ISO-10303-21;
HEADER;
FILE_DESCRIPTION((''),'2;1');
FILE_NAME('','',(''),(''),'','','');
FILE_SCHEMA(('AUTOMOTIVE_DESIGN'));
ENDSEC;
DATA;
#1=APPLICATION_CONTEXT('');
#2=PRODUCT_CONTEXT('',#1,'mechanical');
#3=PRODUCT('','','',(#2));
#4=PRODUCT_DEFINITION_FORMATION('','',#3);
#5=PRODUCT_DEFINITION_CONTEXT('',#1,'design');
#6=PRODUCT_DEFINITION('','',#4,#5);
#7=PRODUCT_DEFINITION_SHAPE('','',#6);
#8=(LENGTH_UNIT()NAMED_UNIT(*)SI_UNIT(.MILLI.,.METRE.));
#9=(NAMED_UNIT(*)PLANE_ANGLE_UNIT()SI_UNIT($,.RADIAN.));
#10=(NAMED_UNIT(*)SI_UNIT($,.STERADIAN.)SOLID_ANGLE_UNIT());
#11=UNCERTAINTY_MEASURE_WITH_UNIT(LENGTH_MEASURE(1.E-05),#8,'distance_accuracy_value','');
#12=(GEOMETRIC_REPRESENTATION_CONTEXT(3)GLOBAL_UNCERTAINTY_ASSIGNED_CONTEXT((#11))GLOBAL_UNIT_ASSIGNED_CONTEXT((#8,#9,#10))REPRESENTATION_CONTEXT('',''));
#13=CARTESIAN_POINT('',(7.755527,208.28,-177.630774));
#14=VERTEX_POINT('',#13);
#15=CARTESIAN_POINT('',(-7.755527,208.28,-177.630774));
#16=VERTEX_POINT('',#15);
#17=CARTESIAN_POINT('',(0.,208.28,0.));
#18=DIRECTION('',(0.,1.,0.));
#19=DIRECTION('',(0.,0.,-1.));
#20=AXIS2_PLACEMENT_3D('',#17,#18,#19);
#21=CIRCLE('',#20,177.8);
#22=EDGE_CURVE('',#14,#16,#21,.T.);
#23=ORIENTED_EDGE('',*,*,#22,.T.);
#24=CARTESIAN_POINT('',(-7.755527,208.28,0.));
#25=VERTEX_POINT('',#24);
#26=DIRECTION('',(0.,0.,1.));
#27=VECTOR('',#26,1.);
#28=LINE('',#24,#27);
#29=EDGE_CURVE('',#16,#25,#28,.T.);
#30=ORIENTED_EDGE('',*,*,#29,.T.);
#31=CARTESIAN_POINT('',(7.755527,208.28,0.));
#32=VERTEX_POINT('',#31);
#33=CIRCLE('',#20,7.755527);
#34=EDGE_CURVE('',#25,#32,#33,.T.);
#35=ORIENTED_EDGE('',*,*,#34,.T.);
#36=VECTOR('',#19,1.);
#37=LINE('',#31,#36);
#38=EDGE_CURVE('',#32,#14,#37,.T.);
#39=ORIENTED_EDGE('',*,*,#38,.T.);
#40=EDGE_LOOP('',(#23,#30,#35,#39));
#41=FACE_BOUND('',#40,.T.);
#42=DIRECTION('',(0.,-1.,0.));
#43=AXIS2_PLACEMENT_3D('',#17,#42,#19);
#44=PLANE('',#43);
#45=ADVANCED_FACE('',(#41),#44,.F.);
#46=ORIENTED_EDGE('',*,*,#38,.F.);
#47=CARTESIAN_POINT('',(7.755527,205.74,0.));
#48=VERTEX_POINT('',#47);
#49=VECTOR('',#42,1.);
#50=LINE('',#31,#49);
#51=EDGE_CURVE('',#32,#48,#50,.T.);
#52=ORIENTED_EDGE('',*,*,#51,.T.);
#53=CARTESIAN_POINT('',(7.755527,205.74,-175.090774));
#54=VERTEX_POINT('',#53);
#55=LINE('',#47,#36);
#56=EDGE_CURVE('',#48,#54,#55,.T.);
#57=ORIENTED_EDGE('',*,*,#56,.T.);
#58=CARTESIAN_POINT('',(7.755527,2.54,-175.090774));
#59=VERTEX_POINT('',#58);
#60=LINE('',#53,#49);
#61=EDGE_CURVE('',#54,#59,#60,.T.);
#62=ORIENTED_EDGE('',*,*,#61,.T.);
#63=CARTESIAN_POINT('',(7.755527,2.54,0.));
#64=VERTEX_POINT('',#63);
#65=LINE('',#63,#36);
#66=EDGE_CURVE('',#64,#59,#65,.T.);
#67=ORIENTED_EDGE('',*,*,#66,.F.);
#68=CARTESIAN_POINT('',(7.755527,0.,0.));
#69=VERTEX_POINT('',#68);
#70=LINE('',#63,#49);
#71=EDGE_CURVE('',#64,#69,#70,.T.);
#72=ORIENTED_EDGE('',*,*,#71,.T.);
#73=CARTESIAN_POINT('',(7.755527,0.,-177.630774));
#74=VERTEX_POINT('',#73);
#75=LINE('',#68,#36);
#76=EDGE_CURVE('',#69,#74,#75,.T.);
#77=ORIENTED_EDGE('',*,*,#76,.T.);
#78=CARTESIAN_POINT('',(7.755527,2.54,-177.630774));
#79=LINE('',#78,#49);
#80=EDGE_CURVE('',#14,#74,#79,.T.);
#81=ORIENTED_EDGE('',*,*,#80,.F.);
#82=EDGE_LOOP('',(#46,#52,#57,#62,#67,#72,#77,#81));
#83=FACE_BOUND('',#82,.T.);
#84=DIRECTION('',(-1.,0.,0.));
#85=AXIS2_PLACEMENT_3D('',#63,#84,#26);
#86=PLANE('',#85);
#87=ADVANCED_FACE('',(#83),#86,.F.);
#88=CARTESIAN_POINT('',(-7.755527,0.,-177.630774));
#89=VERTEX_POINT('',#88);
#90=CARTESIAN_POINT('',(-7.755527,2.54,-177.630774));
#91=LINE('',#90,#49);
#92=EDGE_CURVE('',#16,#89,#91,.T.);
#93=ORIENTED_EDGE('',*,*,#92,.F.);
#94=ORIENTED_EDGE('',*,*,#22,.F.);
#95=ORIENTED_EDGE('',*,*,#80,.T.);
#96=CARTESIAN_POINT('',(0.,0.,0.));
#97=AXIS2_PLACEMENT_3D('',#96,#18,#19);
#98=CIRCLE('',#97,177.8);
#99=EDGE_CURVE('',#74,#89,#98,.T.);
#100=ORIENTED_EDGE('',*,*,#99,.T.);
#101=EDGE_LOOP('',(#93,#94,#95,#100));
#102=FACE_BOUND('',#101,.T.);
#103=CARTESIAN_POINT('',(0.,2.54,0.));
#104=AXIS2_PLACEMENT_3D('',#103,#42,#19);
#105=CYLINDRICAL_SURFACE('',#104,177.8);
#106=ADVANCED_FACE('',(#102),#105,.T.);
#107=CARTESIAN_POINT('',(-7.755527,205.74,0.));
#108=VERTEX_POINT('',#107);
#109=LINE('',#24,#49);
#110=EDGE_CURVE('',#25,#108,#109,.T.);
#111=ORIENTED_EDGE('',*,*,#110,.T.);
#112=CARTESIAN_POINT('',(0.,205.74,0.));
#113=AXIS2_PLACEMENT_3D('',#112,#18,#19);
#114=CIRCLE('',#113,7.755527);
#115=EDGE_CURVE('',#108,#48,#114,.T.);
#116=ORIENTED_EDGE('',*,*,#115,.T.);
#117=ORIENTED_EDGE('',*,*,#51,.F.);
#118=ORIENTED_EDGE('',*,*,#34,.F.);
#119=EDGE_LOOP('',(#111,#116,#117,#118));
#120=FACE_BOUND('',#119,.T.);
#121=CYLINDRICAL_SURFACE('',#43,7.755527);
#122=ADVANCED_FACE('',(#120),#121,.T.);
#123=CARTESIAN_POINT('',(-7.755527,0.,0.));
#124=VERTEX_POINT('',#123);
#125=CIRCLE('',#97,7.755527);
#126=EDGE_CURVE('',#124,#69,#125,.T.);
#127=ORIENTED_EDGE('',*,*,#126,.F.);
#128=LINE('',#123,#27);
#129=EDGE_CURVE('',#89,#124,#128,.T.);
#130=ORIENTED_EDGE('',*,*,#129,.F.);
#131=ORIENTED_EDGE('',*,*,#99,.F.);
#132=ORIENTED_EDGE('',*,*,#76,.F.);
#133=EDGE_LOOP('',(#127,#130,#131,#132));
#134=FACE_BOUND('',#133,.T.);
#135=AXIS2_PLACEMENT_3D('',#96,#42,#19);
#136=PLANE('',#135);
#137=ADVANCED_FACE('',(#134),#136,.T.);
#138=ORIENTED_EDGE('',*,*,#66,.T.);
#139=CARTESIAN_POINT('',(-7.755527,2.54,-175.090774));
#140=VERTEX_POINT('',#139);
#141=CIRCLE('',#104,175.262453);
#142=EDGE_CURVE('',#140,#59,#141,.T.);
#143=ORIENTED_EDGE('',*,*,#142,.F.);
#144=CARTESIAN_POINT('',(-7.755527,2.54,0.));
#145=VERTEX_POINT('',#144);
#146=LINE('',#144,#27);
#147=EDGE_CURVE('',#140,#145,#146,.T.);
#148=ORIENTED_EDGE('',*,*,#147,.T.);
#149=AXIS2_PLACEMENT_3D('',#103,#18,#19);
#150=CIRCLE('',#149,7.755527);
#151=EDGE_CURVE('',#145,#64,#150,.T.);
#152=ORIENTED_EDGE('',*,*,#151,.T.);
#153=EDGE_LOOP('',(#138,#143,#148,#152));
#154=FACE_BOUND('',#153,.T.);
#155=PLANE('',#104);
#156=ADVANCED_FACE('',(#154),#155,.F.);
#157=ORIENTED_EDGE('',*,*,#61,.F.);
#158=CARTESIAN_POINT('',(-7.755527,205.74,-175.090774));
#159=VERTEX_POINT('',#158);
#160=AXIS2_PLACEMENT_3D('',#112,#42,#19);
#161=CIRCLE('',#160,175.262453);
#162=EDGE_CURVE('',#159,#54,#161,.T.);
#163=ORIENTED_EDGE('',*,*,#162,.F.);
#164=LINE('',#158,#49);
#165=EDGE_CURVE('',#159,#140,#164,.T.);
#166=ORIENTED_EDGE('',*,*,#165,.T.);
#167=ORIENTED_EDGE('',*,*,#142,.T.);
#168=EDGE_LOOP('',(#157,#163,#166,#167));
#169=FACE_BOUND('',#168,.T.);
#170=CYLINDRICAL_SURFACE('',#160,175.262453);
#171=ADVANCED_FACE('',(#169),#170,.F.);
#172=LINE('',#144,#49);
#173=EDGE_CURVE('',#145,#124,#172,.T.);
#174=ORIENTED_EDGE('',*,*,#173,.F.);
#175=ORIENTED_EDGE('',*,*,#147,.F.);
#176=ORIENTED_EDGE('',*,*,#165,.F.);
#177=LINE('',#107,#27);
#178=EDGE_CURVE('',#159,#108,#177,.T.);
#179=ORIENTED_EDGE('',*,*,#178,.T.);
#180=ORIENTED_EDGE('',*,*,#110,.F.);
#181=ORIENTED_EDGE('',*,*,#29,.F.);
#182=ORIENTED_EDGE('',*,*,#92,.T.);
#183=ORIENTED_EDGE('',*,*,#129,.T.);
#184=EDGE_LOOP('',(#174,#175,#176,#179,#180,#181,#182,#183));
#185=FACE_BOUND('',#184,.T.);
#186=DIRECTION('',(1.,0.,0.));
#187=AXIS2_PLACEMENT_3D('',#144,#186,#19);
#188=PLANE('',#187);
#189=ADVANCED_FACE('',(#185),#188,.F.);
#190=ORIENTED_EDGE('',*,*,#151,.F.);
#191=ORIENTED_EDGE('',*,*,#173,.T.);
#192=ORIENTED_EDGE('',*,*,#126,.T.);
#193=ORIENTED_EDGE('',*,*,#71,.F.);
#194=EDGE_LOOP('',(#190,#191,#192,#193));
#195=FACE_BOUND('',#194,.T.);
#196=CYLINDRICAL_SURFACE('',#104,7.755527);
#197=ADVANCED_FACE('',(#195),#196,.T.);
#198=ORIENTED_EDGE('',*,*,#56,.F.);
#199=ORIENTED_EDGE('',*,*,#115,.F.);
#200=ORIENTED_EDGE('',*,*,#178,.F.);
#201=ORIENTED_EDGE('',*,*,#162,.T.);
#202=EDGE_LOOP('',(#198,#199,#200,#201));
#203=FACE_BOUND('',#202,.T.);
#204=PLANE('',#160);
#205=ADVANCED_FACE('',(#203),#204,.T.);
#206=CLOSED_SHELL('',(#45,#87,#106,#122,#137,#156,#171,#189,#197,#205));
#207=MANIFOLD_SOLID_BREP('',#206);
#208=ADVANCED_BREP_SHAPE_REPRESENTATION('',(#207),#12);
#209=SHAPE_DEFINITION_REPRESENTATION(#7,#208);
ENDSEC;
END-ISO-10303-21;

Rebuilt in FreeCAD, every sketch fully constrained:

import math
import FreeCAD as App
import Part
import Sketcher
Q = App.Units.Quantity

doc = App.newDocument("Part")
body = doc.addObject("PartDesign::Body", "Body")

# Sketch on XZ plane
sketch1 = body.newObject("Sketcher::SketchObject", "Sketch")
sketch1.AttachmentSupport = (doc.getObject("XZ_Plane"), [""])
sketch1.MapMode = "FlatFace"
sketch1.addGeometry([
    Part.LineSegment(App.Vector(-8, -178, 0), App.Vector(-8, 0, 0)),
    Part.ArcOfCircle(Part.Circle(App.Vector(0, 0, 0), App.Vector(0, 0, 1), 8), math.radians(0), math.radians(180)),
    Part.LineSegment(App.Vector(8, 0, 0), App.Vector(8, -178, 0)),
    Part.ArcOfCircle(Part.Circle(App.Vector(0, 0, 0), App.Vector(0, 0, 1), 178), math.radians(-92.5), math.radians(-87.5)),
], False)
sketch1.addConstraint([
    Sketcher.Constraint("Tangent", 0, 2, 1, 2),
    Sketcher.Constraint("Tangent", 1, 1, 2, 1),
    Sketcher.Constraint("Coincident", 2, 2, 3, 2),
    Sketcher.Constraint("Coincident", 3, 1, 0, 1),
    Sketcher.Constraint("Vertical", 0),
    Sketcher.Constraint("Vertical", 2),
    Sketcher.Constraint("Coincident", 1, 3, -1, 1),
    Sketcher.Constraint("Coincident", 3, 3, -1, 1),
    Sketcher.Constraint("Radius", 3, Q("7 in")),
    Sketcher.Constraint("Radius", 1, Q("7.755527 mm")),
])
pad1 = body.newObject("PartDesign::Pad", "Pad")
pad1.Profile = sketch1
pad1.Length = Q("0.1 in")
pad1.Reversed = True

# Sketch on XZ plane
sketch2 = body.newObject("Sketcher::SketchObject", "Sketch001")
sketch2.AttachmentSupport = (doc.getObject("XZ_Plane"), [""])
sketch2.MapMode = "FlatFace"
sketch2.AttachmentOffset = App.Placement(App.Vector(0, 0, -0.1 * 25.4), App.Rotation())
sketch2.addGeometry([
    Part.LineSegment(App.Vector(-7.8, -177.6, 0), App.Vector(-7.8, -175.1, 0)),
    Part.ArcOfCircle(Part.Circle(App.Vector(0, 0, 0), App.Vector(0, 0, 1), 175.3), math.radians(-92.54), math.radians(-87.46)),
    Part.LineSegment(App.Vector(7.8, -175.1, 0), App.Vector(7.8, -177.6, 0)),
    Part.ArcOfCircle(Part.Circle(App.Vector(0, 0, 0), App.Vector(0, 0, 1), 177.8), math.radians(-92.5), math.radians(-87.5)),
], False)
sketch2.addConstraint([
    Sketcher.Constraint("Coincident", 0, 2, 1, 1),
    Sketcher.Constraint("Coincident", 1, 2, 2, 1),
    Sketcher.Constraint("Coincident", 2, 2, 3, 2),
    Sketcher.Constraint("Coincident", 3, 1, 0, 1),
    Sketcher.Constraint("Vertical", 0),
    Sketcher.Constraint("Vertical", 2),
    Sketcher.Constraint("Coincident", 1, 3, -1, 1),
    Sketcher.Constraint("Coincident", 3, 3, -1, 1),
    Sketcher.Constraint("Horizontal", 0, 2, 1, 2),
    Sketcher.Constraint("Radius", 3, Q("7 in")),
    Sketcher.Constraint("DistanceY", 0, 1, 0, 2, Q("0.1 in")),
    Sketcher.Constraint("DistanceX", 0, 2, -1, 1, Q("7.755527 mm")),
])
pad2 = body.newObject("PartDesign::Pad", "Pad001")
pad2.Profile = sketch2
pad2.Length = Q("8 in")
pad2.Reversed = True

# Sketch on XZ plane
sketch3 = body.newObject("Sketcher::SketchObject", "Sketch002")
sketch3.AttachmentSupport = (doc.getObject("XZ_Plane"), [""])
sketch3.MapMode = "FlatFace"
sketch3.AttachmentOffset = App.Placement(App.Vector(0, 0, -8.1 * 25.4), App.Rotation())
sketch3.addGeometry([
    Part.LineSegment(App.Vector(-8, -178, 0), App.Vector(-8, 0, 0)),
    Part.ArcOfCircle(Part.Circle(App.Vector(0, 0, 0), App.Vector(0, 0, 1), 8), math.radians(0), math.radians(180)),
    Part.LineSegment(App.Vector(8, 0, 0), App.Vector(8, -178, 0)),
    Part.ArcOfCircle(Part.Circle(App.Vector(0, 0, 0), App.Vector(0, 0, 1), 178), math.radians(-92.5), math.radians(-87.5)),
], False)
sketch3.addConstraint([
    Sketcher.Constraint("Tangent", 0, 2, 1, 2),
    Sketcher.Constraint("Tangent", 1, 1, 2, 1),
    Sketcher.Constraint("Coincident", 2, 2, 3, 2),
    Sketcher.Constraint("Coincident", 3, 1, 0, 1),
    Sketcher.Constraint("Vertical", 0),
    Sketcher.Constraint("Vertical", 2),
    Sketcher.Constraint("Coincident", 1, 3, -1, 1),
    Sketcher.Constraint("Coincident", 3, 3, -1, 1),
    Sketcher.Constraint("Radius", 3, Q("7 in")),
    Sketcher.Constraint("Radius", 1, Q("7.755527 mm")),
])
pad3 = body.newObject("PartDesign::Pad", "Pad002")
pad3.Profile = sketch3
pad3.Length = Q("0.1 in")
pad3.Reversed = True

doc.recompute()
